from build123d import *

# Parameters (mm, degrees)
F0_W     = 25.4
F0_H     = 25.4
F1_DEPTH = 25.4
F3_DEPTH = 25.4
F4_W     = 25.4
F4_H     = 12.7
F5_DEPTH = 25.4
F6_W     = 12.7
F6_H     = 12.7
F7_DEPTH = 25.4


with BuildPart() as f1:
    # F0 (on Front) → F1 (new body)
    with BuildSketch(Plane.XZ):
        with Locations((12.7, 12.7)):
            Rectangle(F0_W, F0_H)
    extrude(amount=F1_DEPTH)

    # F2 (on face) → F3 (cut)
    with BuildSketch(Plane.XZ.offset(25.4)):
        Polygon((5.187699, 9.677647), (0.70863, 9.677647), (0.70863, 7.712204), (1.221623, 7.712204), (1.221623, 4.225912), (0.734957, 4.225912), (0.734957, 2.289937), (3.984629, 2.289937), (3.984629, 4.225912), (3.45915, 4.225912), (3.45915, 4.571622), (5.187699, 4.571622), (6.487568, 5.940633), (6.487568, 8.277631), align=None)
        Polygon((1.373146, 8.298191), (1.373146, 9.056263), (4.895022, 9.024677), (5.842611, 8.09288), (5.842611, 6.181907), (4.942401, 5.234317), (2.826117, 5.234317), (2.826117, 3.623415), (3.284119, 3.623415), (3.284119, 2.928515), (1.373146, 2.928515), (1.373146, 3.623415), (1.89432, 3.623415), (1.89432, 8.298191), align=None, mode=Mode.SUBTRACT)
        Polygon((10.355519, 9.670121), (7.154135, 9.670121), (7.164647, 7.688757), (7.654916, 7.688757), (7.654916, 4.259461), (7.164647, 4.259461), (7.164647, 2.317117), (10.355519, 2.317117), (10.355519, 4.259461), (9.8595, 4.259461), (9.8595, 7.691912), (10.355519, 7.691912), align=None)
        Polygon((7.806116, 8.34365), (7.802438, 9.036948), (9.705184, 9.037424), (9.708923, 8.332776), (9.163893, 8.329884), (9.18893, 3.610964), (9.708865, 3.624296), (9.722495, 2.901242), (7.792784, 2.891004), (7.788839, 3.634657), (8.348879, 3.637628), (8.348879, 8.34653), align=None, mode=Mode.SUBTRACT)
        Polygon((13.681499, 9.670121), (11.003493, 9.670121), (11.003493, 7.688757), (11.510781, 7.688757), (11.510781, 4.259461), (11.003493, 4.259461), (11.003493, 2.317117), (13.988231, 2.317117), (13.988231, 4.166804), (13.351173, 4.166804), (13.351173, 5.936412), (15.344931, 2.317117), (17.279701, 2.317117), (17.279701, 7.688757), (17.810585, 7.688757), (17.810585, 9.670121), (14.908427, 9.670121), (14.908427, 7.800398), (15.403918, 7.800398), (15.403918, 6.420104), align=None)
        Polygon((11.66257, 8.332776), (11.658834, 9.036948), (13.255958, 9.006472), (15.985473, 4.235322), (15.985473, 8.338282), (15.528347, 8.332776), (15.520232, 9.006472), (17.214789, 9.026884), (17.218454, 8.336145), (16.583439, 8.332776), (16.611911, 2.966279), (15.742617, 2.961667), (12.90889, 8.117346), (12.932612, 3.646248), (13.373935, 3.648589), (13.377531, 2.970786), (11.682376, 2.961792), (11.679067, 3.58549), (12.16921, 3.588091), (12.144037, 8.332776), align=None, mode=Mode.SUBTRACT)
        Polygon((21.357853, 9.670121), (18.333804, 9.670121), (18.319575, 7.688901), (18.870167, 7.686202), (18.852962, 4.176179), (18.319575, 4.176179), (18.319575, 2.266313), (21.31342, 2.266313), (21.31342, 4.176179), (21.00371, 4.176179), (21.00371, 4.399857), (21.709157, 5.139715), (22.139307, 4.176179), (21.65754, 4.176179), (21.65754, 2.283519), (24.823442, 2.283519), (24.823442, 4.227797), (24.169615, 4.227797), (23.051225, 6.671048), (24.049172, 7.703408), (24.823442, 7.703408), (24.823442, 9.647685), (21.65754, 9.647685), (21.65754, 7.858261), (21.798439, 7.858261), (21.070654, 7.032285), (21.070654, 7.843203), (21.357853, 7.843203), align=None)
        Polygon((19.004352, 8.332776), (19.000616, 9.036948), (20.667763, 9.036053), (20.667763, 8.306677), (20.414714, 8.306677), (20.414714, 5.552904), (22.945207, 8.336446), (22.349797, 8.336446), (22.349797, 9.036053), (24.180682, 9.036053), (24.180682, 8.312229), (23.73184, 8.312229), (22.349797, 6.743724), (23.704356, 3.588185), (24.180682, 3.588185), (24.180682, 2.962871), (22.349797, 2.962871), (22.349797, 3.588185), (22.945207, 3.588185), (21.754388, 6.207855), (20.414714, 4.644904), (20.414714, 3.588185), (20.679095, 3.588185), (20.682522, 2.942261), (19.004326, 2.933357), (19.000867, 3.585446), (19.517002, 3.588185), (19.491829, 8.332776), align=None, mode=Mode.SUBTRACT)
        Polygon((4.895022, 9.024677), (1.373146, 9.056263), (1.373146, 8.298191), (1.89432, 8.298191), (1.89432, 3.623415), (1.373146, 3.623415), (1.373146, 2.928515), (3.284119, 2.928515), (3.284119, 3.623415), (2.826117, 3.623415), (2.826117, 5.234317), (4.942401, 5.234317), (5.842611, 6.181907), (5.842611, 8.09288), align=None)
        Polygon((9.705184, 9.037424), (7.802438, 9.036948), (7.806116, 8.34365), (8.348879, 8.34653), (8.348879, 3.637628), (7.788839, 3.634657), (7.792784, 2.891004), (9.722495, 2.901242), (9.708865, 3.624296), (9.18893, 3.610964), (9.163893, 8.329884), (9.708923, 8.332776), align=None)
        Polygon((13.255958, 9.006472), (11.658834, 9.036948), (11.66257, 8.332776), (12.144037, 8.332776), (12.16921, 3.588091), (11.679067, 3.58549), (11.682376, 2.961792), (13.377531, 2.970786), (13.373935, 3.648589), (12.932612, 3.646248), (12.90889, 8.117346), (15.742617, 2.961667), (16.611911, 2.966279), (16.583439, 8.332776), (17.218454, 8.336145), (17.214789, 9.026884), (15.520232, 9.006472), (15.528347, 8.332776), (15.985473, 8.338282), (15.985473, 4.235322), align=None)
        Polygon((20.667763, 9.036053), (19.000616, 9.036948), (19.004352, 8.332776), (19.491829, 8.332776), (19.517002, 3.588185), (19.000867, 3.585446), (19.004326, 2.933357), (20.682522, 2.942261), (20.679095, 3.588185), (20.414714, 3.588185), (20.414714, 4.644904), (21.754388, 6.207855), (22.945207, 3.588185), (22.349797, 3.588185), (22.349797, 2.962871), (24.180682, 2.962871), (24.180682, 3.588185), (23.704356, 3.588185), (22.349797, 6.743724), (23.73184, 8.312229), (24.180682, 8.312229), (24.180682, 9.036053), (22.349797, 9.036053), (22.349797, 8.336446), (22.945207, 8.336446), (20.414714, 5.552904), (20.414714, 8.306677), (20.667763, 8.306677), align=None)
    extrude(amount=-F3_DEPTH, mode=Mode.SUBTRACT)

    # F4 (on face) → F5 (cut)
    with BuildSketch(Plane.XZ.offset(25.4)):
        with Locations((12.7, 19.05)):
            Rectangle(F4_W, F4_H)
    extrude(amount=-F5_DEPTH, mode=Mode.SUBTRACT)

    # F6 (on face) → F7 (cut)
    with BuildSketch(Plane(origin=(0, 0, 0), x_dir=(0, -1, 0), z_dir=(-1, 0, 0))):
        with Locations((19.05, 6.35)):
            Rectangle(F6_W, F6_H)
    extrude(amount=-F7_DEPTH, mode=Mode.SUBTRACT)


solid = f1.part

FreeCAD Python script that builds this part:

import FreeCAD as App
import Part
import Sketcher
Q = App.Units.Quantity


def add_polygon(sketch, points):
    """Adds a closed chain of lines whose ends are joined by coincident constraints."""
    first, n = sketch.GeometryCount, len(points)
    for a, b in zip(points, points[1:] + points[:1]):
        sketch.addGeometry(Part.LineSegment(App.Vector(*a, 0), App.Vector(*b, 0)), False)
    for i in range(n):
        sketch.addConstraint(Sketcher.Constraint("Coincident", first + i, 2, first + (i + 1) % n, 1))

doc = App.newDocument("Part")
body = doc.addObject("PartDesign::Body", "Body")

# Sketch on XZ plane
sketch1 = body.newObject("Sketcher::SketchObject", "Sketch")
sketch1.AttachmentSupport = (doc.getObject("XZ_Plane"), [""])
sketch1.MapMode = "FlatFace"
add_polygon(sketch1, [(0, 25), (0, 0), (25, 0), (25, 25)])  # lines 0-3
sketch1.addConstraint(Sketcher.Constraint("Vertical", 0))
sketch1.addConstraint(Sketcher.Constraint("Horizontal", 1))
sketch1.addConstraint(Sketcher.Constraint("Vertical", 2))
sketch1.addConstraint(Sketcher.Constraint("Horizontal", 3))
sketch1.addConstraint(Sketcher.Constraint("Coincident", 0, 2, -1, 1))
sketch1.addConstraint(Sketcher.Constraint("Equal", 3, 0))
sketch1.addConstraint(Sketcher.Constraint("DistanceX", 1, 1, 1, 2, Q("1 in")))
pad1 = body.newObject("PartDesign::Pad", "Pad")
pad1.Profile = sketch1
pad1.Length = Q("1 in")

# Sketch on XZ plane
sketch2 = body.newObject("Sketcher::SketchObject", "Sketch001")
sketch2.AttachmentSupport = (doc.getObject("XZ_Plane"), [""])
sketch2.MapMode = "FlatFace"
sketch2.AttachmentOffset = App.Placement(App.Vector(0, 0, 1 * 25.4), App.Rotation())
add_polygon(sketch2, [(5.19, 9.68), (0.71, 9.68), (0.71, 7.71), (1.22, 7.71), (1.22, 4.23), (0.73, 4.23), (0.73, 2.29), (3.98, 2.29), (3.98, 4.23), (3.46, 4.23), (3.46, 4.57), (5.19, 4.57), (6.49, 5.94), (6.49, 8.28)])  # lines 0-13
add_polygon(sketch2, [(10.36, 9.67), (7.15, 9.67), (7.16, 7.69), (7.65, 7.69), (7.65, 4.26), (7.16, 4.26), (7.16, 2.32), (10.36, 2.32), (10.36, 4.26), (9.86, 4.26), (9.86, 7.69), (10.36, 7.69)])  # lines 14-25
add_polygon(sketch2, [(13.68, 9.67), (11, 9.67), (11, 7.69), (11.51, 7.69), (11.51, 4.26), (11, 4.26), (11, 2.32), (13.99, 2.32), (13.99, 4.17), (13.35, 4.17), (13.35, 5.94), (15.34, 2.32), (17.28, 2.32), (17.28, 7.69), (17.81, 7.69), (17.81, 9.67), (14.91, 9.67), (14.91, 7.8), (15.4, 7.8), (15.4, 6.42)])  # lines 26-45
add_polygon(sketch2, [(21.36, 9.67), (18.33, 9.67), (18.32, 7.69), (18.87, 7.69), (18.85, 4.18), (18.32, 4.18), (18.32, 2.27), (21.31, 2.27), (21.31, 4.18), (21, 4.18), (21, 4.4), (21.71, 5.14), (22.14, 4.18), (21.66, 4.18), (21.66, 2.28), (24.82, 2.28), (24.82, 4.23), (24.17, 4.23), (23.05, 6.67), (24.05, 7.7), (24.82, 7.7), (24.82, 9.65), (21.66, 9.65), (21.66, 7.86), (21.8, 7.86), (21.07, 7.03), (21.07, 7.84), (21.36, 7.84)])  # lines 46-73
sketch2.addConstraint(Sketcher.Constraint("Horizontal", 0))
sketch2.addConstraint(Sketcher.Constraint("Vertical", 1))
sketch2.addConstraint(Sketcher.Constraint("Horizontal", 2))
sketch2.addConstraint(Sketcher.Constraint("Vertical", 3))
sketch2.addConstraint(Sketcher.Constraint("Horizontal", 4))
sketch2.addConstraint(Sketcher.Constraint("Vertical", 5))
sketch2.addConstraint(Sketcher.Constraint("Horizontal", 6))
sketch2.addConstraint(Sketcher.Constraint("Vertical", 7))
sketch2.addConstraint(Sketcher.Constraint("Horizontal", 8))
sketch2.addConstraint(Sketcher.Constraint("Vertical", 9))
sketch2.addConstraint(Sketcher.Constraint("Horizontal", 10))
sketch2.addConstraint(Sketcher.Constraint("Vertical", 12))
sketch2.addConstraint(Sketcher.Constraint("Horizontal", 14))
sketch2.addConstraint(Sketcher.Constraint("Horizontal", 16))
sketch2.addConstraint(Sketcher.Constraint("Vertical", 17))
sketch2.addConstraint(Sketcher.Constraint("Horizontal", 18))
sketch2.addConstraint(Sketcher.Constraint("Vertical", 19))
sketch2.addConstraint(Sketcher.Constraint("Horizontal", 20))
sketch2.addConstraint(Sketcher.Constraint("Vertical", 21))
sketch2.addConstraint(Sketcher.Constraint("Horizontal", 22))
sketch2.addConstraint(Sketcher.Constraint("Vertical", 23))
sketch2.addConstraint(Sketcher.Constraint("Horizontal", 24))
sketch2.addConstraint(Sketcher.Constraint("Vertical", 25))
sketch2.addConstraint(Sketcher.Constraint("Horizontal", 26))
sketch2.addConstraint(Sketcher.Constraint("Vertical", 27))
sketch2.addConstraint(Sketcher.Constraint("Horizontal", 28))
sketch2.addConstraint(Sketcher.Constraint("Vertical", 29))
sketch2.addConstraint(Sketcher.Constraint("Horizontal", 30))
sketch2.addConstraint(Sketcher.Constraint("Vertical", 31))
sketch2.addConstraint(Sketcher.Constraint("Horizontal", 32))
sketch2.addConstraint(Sketcher.Constraint("Vertical", 33))
sketch2.addConstraint(Sketcher.Constraint("Horizontal", 34))
sketch2.addConstraint(Sketcher.Constraint("Vertical", 35))
sketch2.addConstraint(Sketcher.Constraint("Horizontal", 37))
sketch2.addConstraint(Sketcher.Constraint("Vertical", 38))
sketch2.addConstraint(Sketcher.Constraint("Horizontal", 39))
sketch2.addConstraint(Sketcher.Constraint("Vertical", 40))
sketch2.addConstraint(Sketcher.Constraint("Horizontal", 41))
sketch2.addConstraint(Sketcher.Constraint("Vertical", 42))
sketch2.addConstraint(Sketcher.Constraint("Horizontal", 43))
sketch2.addConstraint(Sketcher.Constraint("Vertical", 44))
sketch2.addConstraint(Sketcher.Constraint("Horizontal", 46))
sketch2.addConstraint(Sketcher.Constraint("Horizontal", 50))
sketch2.addConstraint(Sketcher.Constraint("Vertical", 51))
sketch2.addConstraint(Sketcher.Constraint("Horizontal", 52))
sketch2.addConstraint(Sketcher.Constraint("Vertical", 53))
sketch2.addConstraint(Sketcher.Constraint("Horizontal", 54))
sketch2.addConstraint(Sketcher.Constraint("Vertical", 55))
sketch2.addConstraint(Sketcher.Constraint("Horizontal", 58))
sketch2.addConstraint(Sketcher.Constraint("Vertical", 59))
sketch2.addConstraint(Sketcher.Constraint("Horizontal", 60))
sketch2.addConstraint(Sketcher.Constraint("Vertical", 61))
sketch2.addConstraint(Sketcher.Constraint("Horizontal", 62))
sketch2.addConstraint(Sketcher.Constraint("Horizontal", 65))
sketch2.addConstraint(Sketcher.Constraint("Vertical", 66))
sketch2.addConstraint(Sketcher.Constraint("Horizontal", 67))
sketch2.addConstraint(Sketcher.Constraint("Vertical", 68))
sketch2.addConstraint(Sketcher.Constraint("Horizontal", 69))
sketch2.addConstraint(Sketcher.Constraint("Vertical", 71))
sketch2.addConstraint(Sketcher.Constraint("Horizontal", 72))
sketch2.addConstraint(Sketcher.Constraint("Vertical", 73))
sketch2.addConstraint(Sketcher.Constraint("Perpendicular", 48, 49))
sketch2.addConstraint(Sketcher.Constraint("Horizontal", 4, 2, 7, 2))
sketch2.addConstraint(Sketcher.Constraint("Horizontal", 18, 2, 21, 2))
sketch2.addConstraint(Sketcher.Constraint("Horizontal", 25, 2, 26, 2))
sketch2.addConstraint(Sketcher.Constraint("Horizontal", 16, 2, 27, 2))
sketch2.addConstraint(Sketcher.Constraint("Horizontal", 22, 2, 29, 2))
sketch2.addConstraint(Sketcher.Constraint("Horizontal", 20, 2, 31, 2))
sketch2.addConstraint(Sketcher.Constraint("Horizontal", 32, 2, 36, 2))
sketch2.addConstraint(Sketcher.Constraint("Horizontal", 28, 2, 38, 2))
sketch2.addConstraint(Sketcher.Constraint("Horizontal", 26, 2, 40, 2))
sketch2.addConstraint(Sketcher.Constraint("Horizontal", 45, 2, 46, 2))
sketch2.addConstraint(Sketcher.Constraint("Horizontal", 50, 2, 53, 2))
sketch2.addConstraint(Sketcher.Constraint("Horizontal", 54, 2, 57, 2))
sketch2.addConstraint(Sketcher.Constraint("Vertical", 10, 2, 13, 2))
sketch2.addConstraint(Sketcher.Constraint("Vertical", 15, 2, 18, 2))
sketch2.addConstraint(Sketcher.Constraint("Vertical", 21, 2, 24, 2))
sketch2.addConstraint(Sketcher.Constraint("Vertical", 27, 2, 30, 2))
sketch2.addConstraint(Sketcher.Constraint("Vertical", 47, 2, 50, 2))
sketch2.addConstraint(Sketcher.Constraint("Vertical", 61, 2, 65, 2))
sketch2.addConstraint(Sketcher.Constraint("Vertical", 59, 2, 67, 2))
sketch2.addConstraint(Sketcher.Constraint("Equal", 61, 66))
sketch2.addConstraint(Sketcher.Constraint("DistanceX", 60, 1, 60, 2, 3.165902))
sketch2.addConstraint(Sketcher.Constraint("DistanceX", 69, 1, 69, 2, 0.140899))
sketch2.addConstraint(Sketcher.Constraint("DistanceX", 72, 1, 72, 2, 0.287199))
sketch2.addConstraint(Sketcher.Constraint("Distance", 48, 0.550599))
sketch2.addConstraint(Sketcher.Constraint("DistanceX", 0, 2, 0, 1, 4.479069))
sketch2.addConstraint(Sketcher.Constraint("DistanceX", 6, 1, 6, 2, 3.249672))
sketch2.addConstraint(Sketcher.Constraint("DistanceX", 8, 2, 8, 1, 0.525479))
sketch2.addConstraint(Sketcher.Constraint("DistanceX", 10, 1, 10, 2, 1.728549))
sketch2.addConstraint(Sketcher.Constraint("DistanceX", 16, 1, 16, 2, 0.490269))
sketch2.addConstraint(Sketcher.Constraint("DistanceX", 20, 1, 20, 2, 3.190872))
sketch2.addConstraint(Sketcher.Constraint("DistanceX", 22, 2, 22, 1, 0.496019))
sketch2.addConstraint(Sketcher.Constraint("DistanceX", 32, 1, 32, 2, 2.984738))
sketch2.addConstraint(Sketcher.Constraint("DistanceX", 34, 2, 34, 1, 0.637058))
sketch2.addConstraint(Sketcher.Constraint("DistanceX", 37, 1, 37, 2, 1.93477))
sketch2.addConstraint(Sketcher.Constraint("DistanceX", 41, 2, 41, 1, 2.902158))
sketch2.addConstraint(Sketcher.Constraint("DistanceX", 43, 1, 43, 2, 0.495491))
sketch2.addConstraint(Sketcher.Constraint("DistanceX", 46, 2, 46, 1, 3.024049))
sketch2.addConstraint(Sketcher.Constraint("DistanceX", 54, 2, 54, 1, 0.30971))
sketch2.addConstraint(Sketcher.Constraint("DistanceX", 65, 1, 65, 2, 0.77427))
sketch2.addConstraint(Sketcher.Constraint("DistanceY", 3, 2, 3, 1, 3.486292))
sketch2.addConstraint(Sketcher.Constraint("DistanceY", 9, 1, 9, 2, 0.34571))
sketch2.addConstraint(Sketcher.Constraint("DistanceY", 23, 1, 23, 2, 3.432451))
sketch2.addConstraint(Sketcher.Constraint("DistanceY", 25, 1, 25, 2, 1.978209))
sketch2.addConstraint(Sketcher.Constraint("DistanceY", 38, 1, 38, 2, 5.37164))
sketch2.addConstraint(Sketcher.Constraint("DistanceY", 59, 2, 59, 1, 1.89266))
sketch2.addConstraint(Sketcher.Constraint("DistanceY", 71, 1, 71, 2, 0.810918))
sketch2.addConstraint(Sketcher.Constraint("DistanceX", -1, 1, 10, 2, 5.187699))
sketch2.addConstraint(Sketcher.Constraint("DistanceX", -1, 1, 22, 2, 9.8595))
sketch2.addConstraint(Sketcher.Constraint("DistanceX", -1, 1, 37, 2, 17.279701))
sketch2.addConstraint(Sketcher.Constraint("DistanceY", -1, 1, 42, 2, 7.800398))
sketch2.addConstraint(Sketcher.Constraint("DistanceX", -1, 1, 45, 2, 13.681499))
sketch2.addConstraint(Sketcher.Constraint("DistanceY", -1, 1, 47, 2, 7.688901))
sketch2.addConstraint(Sketcher.Constraint("DistanceY", -1, 1, 48, 2, 7.686202))
sketch2.addConstraint(Sketcher.Constraint("Distance", 13, 1.91042))
sketch2.addConstraint(Sketcher.Constraint("Distance", 15, 1.981392))
sketch2.addConstraint(Sketcher.Constraint("Distance", 47, 1.981271))
sketch2.addConstraint(Sketcher.Constraint("Distance", 64, 1.43585))
sketch2.addConstraint(Sketcher.Constraint("DistanceX", 2, 1, 2, 2, 0.512993))
sketch2.addConstraint(Sketcher.Constraint("DistanceX", 14, 2, 14, 1, 3.201384))
sketch2.addConstraint(Sketcher.Constraint("DistanceX", 26, 2, 26, 1, 2.678006))
sketch2.addConstraint(Sketcher.Constraint("DistanceX", 28, 1, 28, 2, 0.507288))
sketch2.addConstraint(Sketcher.Constraint("DistanceX", 39, 1, 39, 2, 0.530884))
sketch2.addConstraint(Sketcher.Constraint("DistanceX", 52, 1, 52, 2, 2.993845))
sketch2.addConstraint(Sketcher.Constraint("DistanceX", 58, 2, 58, 1, 0.481767))
sketch2.addConstraint(Sketcher.Constraint("DistanceX", 62, 2, 62, 1, 0.653827))
sketch2.addConstraint(Sketcher.Constraint("DistanceY", 1, 2, 1, 1, 1.965443))
sketch2.addConstraint(Sketcher.Constraint("DistanceY", 5, 2, 5, 1, 1.935975))
sketch2.addConstraint(Sketcher.Constraint("DistanceY", 12, 1, 12, 2, 2.336998))
sketch2.addConstraint(Sketcher.Constraint("DistanceY", 33, 1, 33, 2, 1.849687))
sketch2.addConstraint(Sketcher.Constraint("DistanceY", 35, 1, 35, 2, 1.769608))
sketch2.addConstraint(Sketcher.Constraint("DistanceY", 42, 2, 42, 1, 1.869723))
sketch2.addConstraint(Sketcher.Constraint("DistanceY", 44, 2, 44, 1, 1.380294))
sketch2.addConstraint(Sketcher.Constraint("DistanceY", 51, 2, 51, 1, 1.909866))
sketch2.addConstraint(Sketcher.Constraint("DistanceY", 55, 1, 55, 2, 0.223678))
sketch2.addConstraint(Sketcher.Constraint("DistanceY", 61, 1, 61, 2, 1.944278))
sketch2.addConstraint(Sketcher.Constraint("DistanceY", 68, 2, 68, 1, 1.789424))
sketch2.addConstraint(Sketcher.Constraint("DistanceY", 73, 1, 73, 2, 1.826918))
sketch2.addConstraint(Sketcher.Constraint("DistanceY", -1, 1, 9, 2, 4.571622))
sketch2.addConstraint(Sketcher.Constraint("DistanceY", -1, 1, 12, 2, 8.277631))
sketch2.addConstraint(Sketcher.Constraint("DistanceY", -1, 1, 49, 2, 4.176179))
sketch2.addConstraint(Sketcher.Constraint("DistanceX", -1, 1, 52, 2, 21.31342))
sketch2.addConstraint(Sketcher.Constraint("DistanceX", -1, 1, 58, 2, 21.65754))
sketch2.addConstraint(Sketcher.Constraint("DistanceY", -1, 1, 68, 2, 7.858261))
sketch2.addConstraint(Sketcher.Constraint("Distance", 56, 1.022275))
sketch2.addConstraint(Sketcher.Constraint("Distance", 57, 1.055192))
sketch2.addConstraint(Sketcher.Constraint("Distance", 63, 2.687056))
pocket1 = body.newObject("PartDesign::Pocket", "Pocket")
pocket1.Profile = sketch2
pocket1.Length = Q("1 in")

# Sketch on XZ plane
sketch3 = body.newObject("Sketcher::SketchObject", "Sketch002")
sketch3.AttachmentSupport = (doc.getObject("XZ_Plane"), [""])
sketch3.MapMode = "FlatFace"
sketch3.AttachmentOffset = App.Placement(App.Vector(0, 0, 1 * 25.4), App.Rotation())
add_polygon(sketch3, [(0, 25), (0, 13), (25, 13), (25, 25)])  # lines 0-3
sketch3.addConstraint(Sketcher.Constraint("Vertical", 0))
sketch3.addConstraint(Sketcher.Constraint("Horizontal", 1))
sketch3.addConstraint(Sketcher.Constraint("Vertical", 2))
sketch3.addConstraint(Sketcher.Constraint("Horizontal", 3))
sketch3.addConstraint(Sketcher.Constraint("PointOnObject", 0, 2, -2))
sketch3.addConstraint(Sketcher.Constraint("DistanceX", 1, 1, 1, 2, Q("1 in")))
sketch3.addConstraint(Sketcher.Constraint("DistanceY", 0, 2, 0, 1, Q("0.5 in")))
sketch3.addConstraint(Sketcher.Constraint("DistanceY", -1, 1, 2, 2, Q("1 in")))
pocket2 = body.newObject("PartDesign::Pocket", "Pocket001")
pocket2.Profile = sketch3
pocket2.Length = Q("1 in")

# Sketch on YZ plane
sketch4 = body.newObject("Sketcher::SketchObject", "Sketch003")
sketch4.AttachmentSupport = (doc.getObject("YZ_Plane"), [""])
sketch4.MapMode = "FlatFace"
add_polygon(sketch4, [(-13, 13), (-13, 0), (-25, 0), (-25, 13)])  # lines 0-3
sketch4.addConstraint(Sketcher.Constraint("Vertical", 0))
sketch4.addConstraint(Sketcher.Constraint("Horizontal", 1))
sketch4.addConstraint(Sketcher.Constraint("Vertical", 2))
sketch4.addConstraint(Sketcher.Constraint("Horizontal", 3))
sketch4.addConstraint(Sketcher.Constraint("PointOnObject", 0, 2, -1))
sketch4.addConstraint(Sketcher.Constraint("Equal", 3, 0))
sketch4.addConstraint(Sketcher.Constraint("DistanceX", 1, 2, 1, 1, Q("0.5 in")))
sketch4.addConstraint(Sketcher.Constraint("DistanceX", 1, 2, -1, 1, Q("1 in")))
pocket3 = body.newObject("PartDesign::Pocket", "Pocket002")
pocket3.Profile = sketch4
pocket3.Length = Q("1 in")
pocket3.Reversed = True

doc.recompute()
